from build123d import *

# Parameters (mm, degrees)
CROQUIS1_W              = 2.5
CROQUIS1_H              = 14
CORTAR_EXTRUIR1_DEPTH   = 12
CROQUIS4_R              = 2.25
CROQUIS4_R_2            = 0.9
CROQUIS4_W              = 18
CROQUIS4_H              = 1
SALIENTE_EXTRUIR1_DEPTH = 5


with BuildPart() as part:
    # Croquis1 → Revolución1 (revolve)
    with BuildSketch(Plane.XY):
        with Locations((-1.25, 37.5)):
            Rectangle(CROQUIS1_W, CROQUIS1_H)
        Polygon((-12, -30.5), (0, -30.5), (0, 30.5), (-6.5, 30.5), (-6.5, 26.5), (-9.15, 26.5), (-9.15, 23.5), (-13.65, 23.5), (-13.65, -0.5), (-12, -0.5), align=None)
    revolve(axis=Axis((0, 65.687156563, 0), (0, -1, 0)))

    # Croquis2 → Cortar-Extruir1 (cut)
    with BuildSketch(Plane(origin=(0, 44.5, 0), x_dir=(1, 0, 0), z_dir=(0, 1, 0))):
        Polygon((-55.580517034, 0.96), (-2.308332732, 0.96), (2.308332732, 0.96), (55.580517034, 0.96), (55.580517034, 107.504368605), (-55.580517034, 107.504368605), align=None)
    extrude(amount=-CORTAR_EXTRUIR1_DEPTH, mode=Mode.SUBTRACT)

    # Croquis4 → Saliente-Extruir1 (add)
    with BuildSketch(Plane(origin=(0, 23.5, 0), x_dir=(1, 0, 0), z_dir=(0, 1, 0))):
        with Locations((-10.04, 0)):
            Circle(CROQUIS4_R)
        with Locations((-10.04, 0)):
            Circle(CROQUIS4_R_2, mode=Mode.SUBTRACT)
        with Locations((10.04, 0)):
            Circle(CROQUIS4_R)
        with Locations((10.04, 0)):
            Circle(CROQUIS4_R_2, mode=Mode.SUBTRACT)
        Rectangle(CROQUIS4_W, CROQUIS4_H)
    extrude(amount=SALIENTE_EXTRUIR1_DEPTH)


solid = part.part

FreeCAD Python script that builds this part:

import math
import FreeCAD as App
import Part
import Sketcher
from FreeCAD import Vector


def add_polygon(sketch, points):
    """Adds a closed chain of lines whose ends are joined by coincident constraints."""
    first, n = sketch.GeometryCount, len(points)
    for a, b in zip(points, points[1:] + points[:1]):
        sketch.addGeometry(Part.LineSegment(App.Vector(*a, 0), App.Vector(*b, 0)), False)
    for i in range(n):
        sketch.addConstraint(Sketcher.Constraint("Coincident", first + i, 2, first + (i + 1) % n, 1))

doc = App.newDocument("Part")
params = doc.addObject("Spreadsheet::Sheet", "Params")
for row, (alias, value) in enumerate([
    ("sketch1_width", "4 mm"),
    ("sketch1_width2", "12 mm"),
    ("sketch1_height", "14 mm"),
    ("sketch1_height2", "3 mm"),
    ("sketch1_height3", "24 mm"),
    ("revolution_angle", "360 deg"),
    ("pocket1_length", "12 mm"),
    ("sketch3_diameter", "1.8 mm"),
    ("sketch3_radius", "2.25 mm"),
    ("pad1_length", "5 mm"),
], start=1):
    params.set(f"A{row}", alias)
    params.set(f"B{row}", "=" + value)
    params.setAlias(f"B{row}", alias)

body = doc.addObject("PartDesign::Body", "Body")

sketch1 = doc.addObject("Sketcher::SketchObject", "Sketch")
body.addObject(sketch1)
sketch1.AttachmentSupport = (doc.XY_Plane, [""])
sketch1.MapMode = "FlatFace"
add_polygon(sketch1, [(-2.5, 44.5), (-2.5, 30.5), (-6.5, 30.5), (-6.5, 26.5), (-9.2, 26.5), (-9.2, 23.5), (-13.7, 23.5), (-13.7, -0.5), (-12, -0.5), (-12, -30.5), (0, -30.5), (0, 44.5)])
sketch1.addConstraint(Sketcher.Constraint("Vertical", 0))
sketch1.addConstraint(Sketcher.Constraint("Horizontal", 1))
sketch1.addConstraint(Sketcher.Constraint("Vertical", 2))
sketch1.addConstraint(Sketcher.Constraint("Horizontal", 3))
sketch1.addConstraint(Sketcher.Constraint("Vertical", 4))
sketch1.addConstraint(Sketcher.Constraint("Horizontal", 5))
sketch1.addConstraint(Sketcher.Constraint("Vertical", 6))
sketch1.addConstraint(Sketcher.Constraint("Horizontal", 7))
sketch1.addConstraint(Sketcher.Constraint("Vertical", 8))
sketch1.addConstraint(Sketcher.Constraint("Horizontal", 9))
sketch1.addConstraint(Sketcher.Constraint("Vertical", 10))
sketch1.addConstraint(Sketcher.Constraint("Horizontal", 11))
sketch1.addConstraint(Sketcher.Constraint("PointOnObject", 9, 2, -2))
sketch1.addConstraint(Sketcher.Constraint("Equal", 1, 2))
sketch1.addConstraint(Sketcher.Constraint("DistanceX", 1, 2, 1, 1, 4.0))
sketch1.addConstraint(Sketcher.Constraint("DistanceX", 9, 1, 9, 2, 12.0))
sketch1.addConstraint(Sketcher.Constraint("DistanceY", 0, 2, 0, 1, 14.0))
sketch1.addConstraint(Sketcher.Constraint("DistanceY", 4, 2, 4, 1, 3.0))
sketch1.addConstraint(Sketcher.Constraint("DistanceY", 6, 2, 6, 1, 24.0))
sketch1.addConstraint(Sketcher.Constraint("DistanceY", 8, 2, 8, 1, 30.0))
sketch1.addConstraint(Sketcher.Constraint("DistanceX", 5, 2, 5, 1, 4.5))
sketch1.addConstraint(Sketcher.Constraint("DistanceX", 11, 2, 11, 1, 2.5))
sketch1.addConstraint(Sketcher.Constraint("DistanceX", 3, 2, 3, 1, 2.65))
sketch1.addConstraint(Sketcher.Constraint("DistanceY", -1, 1, 0, 2, 30.5))
sketch1.setExpression("Constraints[26]", "Params.sketch1_width")
sketch1.setExpression("Constraints[27]", "Params.sketch1_width2")
sketch1.setExpression("Constraints[28]", "Params.sketch1_height")
sketch1.setExpression("Constraints[29]", "Params.sketch1_height2")
sketch1.setExpression("Constraints[30]", "Params.sketch1_height3")
revolution = doc.addObject("PartDesign::Revolution", "Revolution")
body.addObject(revolution)
revolution.Profile = sketch1
revolution.ReferenceAxis = (sketch1, ["V_Axis"])
revolution.setExpression("Angle", "Params.revolution_angle")

sketch2 = doc.addObject("Sketcher::SketchObject", "Sketch001")
body.addObject(sketch2)
sketch2.AttachmentSupport = (doc.XZ_Plane, [""])
sketch2.MapMode = "FlatFace"
sketch2.AttachmentOffset = App.Placement(Vector(0, 0, -44.5), App.Rotation())
add_polygon(sketch2, [(-56, -1), (56, -1), (56, -108), (-56, -108)])
sketch2.addConstraint(Sketcher.Constraint("Horizontal", 0))
sketch2.addConstraint(Sketcher.Constraint("Vertical", 1))
sketch2.addConstraint(Sketcher.Constraint("Horizontal", 2))
sketch2.addConstraint(Sketcher.Constraint("Vertical", 3))
sketch2.addConstraint(Sketcher.Constraint("DistanceY", 0, 2, -1, 1, 0.96))
sketch2.addConstraint(Sketcher.Constraint("DistanceY", 1, 2, 1, 1, 106.544369))
sketch2.addConstraint(Sketcher.Constraint("DistanceX", 0, 1, 0, 2, 111.161034))
sketch2.addConstraint(Sketcher.Constraint("DistanceX", -1, 1, 0, 2, 55.580517))
pocket1 = doc.addObject("PartDesign::Pocket", "Pocket")
body.addObject(pocket1)
pocket1.Profile = sketch2
pocket1.setExpression("Length", "Params.pocket1_length")
pocket1.Reversed = True

sketch3 = doc.addObject("Sketcher::SketchObject", "Sketch002")
body.addObject(sketch3)
sketch3.AttachmentSupport = (doc.XZ_Plane, [""])
sketch3.MapMode = "FlatFace"
sketch3.AttachmentOffset = App.Placement(Vector(0, 0, -23.5), App.Rotation())
sketch3.addGeometry(Part.LineSegment(Vector(-7.8, 0.5, 0), Vector(7.8, 0.5, 0)), False)
sketch3.addGeometry(Part.ArcOfCircle(Part.Circle(Vector(10, 0, 0), Vector(0, 0, 1), 2.2), math.radians(-167), math.radians(167)), False)
sketch3.addGeometry(Part.LineSegment(Vector(7.8, -0.5, 0), Vector(-7.8, -0.5, 0)), False)
sketch3.addGeometry(Part.ArcOfCircle(Part.Circle(Vector(-10, 0, 0), Vector(0, 0, 1), 2.2), math.radians(13), math.radians(347)), False)
sketch3.addGeometry(Part.Circle(Vector(-10, 0, 0), Vector(0, 0, 1), 0.9), False)
sketch3.addGeometry(Part.Circle(Vector(10, 0, 0), Vector(0, 0, 1), 0.9), False)
sketch3.addConstraint(Sketcher.Constraint("Coincident", 0, 2, 1, 2))
sketch3.addConstraint(Sketcher.Constraint("Coincident", 1, 1, 2, 1))
sketch3.addConstraint(Sketcher.Constraint("Coincident", 2, 2, 3, 2))
sketch3.addConstraint(Sketcher.Constraint("Coincident", 3, 1, 0, 1))
sketch3.addConstraint(Sketcher.Constraint("Horizontal", 0))
sketch3.addConstraint(Sketcher.Constraint("Horizontal", 2))
sketch3.addConstraint(Sketcher.Constraint("Coincident", 4, 3, 3, 3))
sketch3.addConstraint(Sketcher.Constraint("Coincident", 5, 3, 1, 3))
sketch3.addConstraint(Sketcher.Constraint("Equal", 1, 3))
sketch3.addConstraint(Sketcher.Constraint("Equal", 4, 5))
sketch3.addConstraint(Sketcher.Constraint("Symmetric", 1, 3, 3, 3, -1, 1))
sketch3.addConstraint(Sketcher.Constraint("Symmetric", 0, 2, 1, 1, -1))
sketch3.addConstraint(Sketcher.Constraint("Diameter", 4, 1.8))
sketch3.addConstraint(Sketcher.Constraint("Radius", 1, 2.25))
sketch3.addConstraint(Sketcher.Constraint("DistanceY", 1, 1, 0, 2, 1.0))
sketch3.addConstraint(Sketcher.Constraint("DistanceX", -1, 1, 1, 3, 10.04))
sketch3.setExpression("Constraints[12]", "Params.sketch3_diameter")
sketch3.setExpression("Constraints[13]", "Params.sketch3_radius")
pad1 = doc.addObject("PartDesign::Pad", "Pad")
body.addObject(pad1)
pad1.Profile = sketch3
pad1.setExpression("Length", "Params.pad1_length")
pad1.Reversed = True

doc.recompute()
